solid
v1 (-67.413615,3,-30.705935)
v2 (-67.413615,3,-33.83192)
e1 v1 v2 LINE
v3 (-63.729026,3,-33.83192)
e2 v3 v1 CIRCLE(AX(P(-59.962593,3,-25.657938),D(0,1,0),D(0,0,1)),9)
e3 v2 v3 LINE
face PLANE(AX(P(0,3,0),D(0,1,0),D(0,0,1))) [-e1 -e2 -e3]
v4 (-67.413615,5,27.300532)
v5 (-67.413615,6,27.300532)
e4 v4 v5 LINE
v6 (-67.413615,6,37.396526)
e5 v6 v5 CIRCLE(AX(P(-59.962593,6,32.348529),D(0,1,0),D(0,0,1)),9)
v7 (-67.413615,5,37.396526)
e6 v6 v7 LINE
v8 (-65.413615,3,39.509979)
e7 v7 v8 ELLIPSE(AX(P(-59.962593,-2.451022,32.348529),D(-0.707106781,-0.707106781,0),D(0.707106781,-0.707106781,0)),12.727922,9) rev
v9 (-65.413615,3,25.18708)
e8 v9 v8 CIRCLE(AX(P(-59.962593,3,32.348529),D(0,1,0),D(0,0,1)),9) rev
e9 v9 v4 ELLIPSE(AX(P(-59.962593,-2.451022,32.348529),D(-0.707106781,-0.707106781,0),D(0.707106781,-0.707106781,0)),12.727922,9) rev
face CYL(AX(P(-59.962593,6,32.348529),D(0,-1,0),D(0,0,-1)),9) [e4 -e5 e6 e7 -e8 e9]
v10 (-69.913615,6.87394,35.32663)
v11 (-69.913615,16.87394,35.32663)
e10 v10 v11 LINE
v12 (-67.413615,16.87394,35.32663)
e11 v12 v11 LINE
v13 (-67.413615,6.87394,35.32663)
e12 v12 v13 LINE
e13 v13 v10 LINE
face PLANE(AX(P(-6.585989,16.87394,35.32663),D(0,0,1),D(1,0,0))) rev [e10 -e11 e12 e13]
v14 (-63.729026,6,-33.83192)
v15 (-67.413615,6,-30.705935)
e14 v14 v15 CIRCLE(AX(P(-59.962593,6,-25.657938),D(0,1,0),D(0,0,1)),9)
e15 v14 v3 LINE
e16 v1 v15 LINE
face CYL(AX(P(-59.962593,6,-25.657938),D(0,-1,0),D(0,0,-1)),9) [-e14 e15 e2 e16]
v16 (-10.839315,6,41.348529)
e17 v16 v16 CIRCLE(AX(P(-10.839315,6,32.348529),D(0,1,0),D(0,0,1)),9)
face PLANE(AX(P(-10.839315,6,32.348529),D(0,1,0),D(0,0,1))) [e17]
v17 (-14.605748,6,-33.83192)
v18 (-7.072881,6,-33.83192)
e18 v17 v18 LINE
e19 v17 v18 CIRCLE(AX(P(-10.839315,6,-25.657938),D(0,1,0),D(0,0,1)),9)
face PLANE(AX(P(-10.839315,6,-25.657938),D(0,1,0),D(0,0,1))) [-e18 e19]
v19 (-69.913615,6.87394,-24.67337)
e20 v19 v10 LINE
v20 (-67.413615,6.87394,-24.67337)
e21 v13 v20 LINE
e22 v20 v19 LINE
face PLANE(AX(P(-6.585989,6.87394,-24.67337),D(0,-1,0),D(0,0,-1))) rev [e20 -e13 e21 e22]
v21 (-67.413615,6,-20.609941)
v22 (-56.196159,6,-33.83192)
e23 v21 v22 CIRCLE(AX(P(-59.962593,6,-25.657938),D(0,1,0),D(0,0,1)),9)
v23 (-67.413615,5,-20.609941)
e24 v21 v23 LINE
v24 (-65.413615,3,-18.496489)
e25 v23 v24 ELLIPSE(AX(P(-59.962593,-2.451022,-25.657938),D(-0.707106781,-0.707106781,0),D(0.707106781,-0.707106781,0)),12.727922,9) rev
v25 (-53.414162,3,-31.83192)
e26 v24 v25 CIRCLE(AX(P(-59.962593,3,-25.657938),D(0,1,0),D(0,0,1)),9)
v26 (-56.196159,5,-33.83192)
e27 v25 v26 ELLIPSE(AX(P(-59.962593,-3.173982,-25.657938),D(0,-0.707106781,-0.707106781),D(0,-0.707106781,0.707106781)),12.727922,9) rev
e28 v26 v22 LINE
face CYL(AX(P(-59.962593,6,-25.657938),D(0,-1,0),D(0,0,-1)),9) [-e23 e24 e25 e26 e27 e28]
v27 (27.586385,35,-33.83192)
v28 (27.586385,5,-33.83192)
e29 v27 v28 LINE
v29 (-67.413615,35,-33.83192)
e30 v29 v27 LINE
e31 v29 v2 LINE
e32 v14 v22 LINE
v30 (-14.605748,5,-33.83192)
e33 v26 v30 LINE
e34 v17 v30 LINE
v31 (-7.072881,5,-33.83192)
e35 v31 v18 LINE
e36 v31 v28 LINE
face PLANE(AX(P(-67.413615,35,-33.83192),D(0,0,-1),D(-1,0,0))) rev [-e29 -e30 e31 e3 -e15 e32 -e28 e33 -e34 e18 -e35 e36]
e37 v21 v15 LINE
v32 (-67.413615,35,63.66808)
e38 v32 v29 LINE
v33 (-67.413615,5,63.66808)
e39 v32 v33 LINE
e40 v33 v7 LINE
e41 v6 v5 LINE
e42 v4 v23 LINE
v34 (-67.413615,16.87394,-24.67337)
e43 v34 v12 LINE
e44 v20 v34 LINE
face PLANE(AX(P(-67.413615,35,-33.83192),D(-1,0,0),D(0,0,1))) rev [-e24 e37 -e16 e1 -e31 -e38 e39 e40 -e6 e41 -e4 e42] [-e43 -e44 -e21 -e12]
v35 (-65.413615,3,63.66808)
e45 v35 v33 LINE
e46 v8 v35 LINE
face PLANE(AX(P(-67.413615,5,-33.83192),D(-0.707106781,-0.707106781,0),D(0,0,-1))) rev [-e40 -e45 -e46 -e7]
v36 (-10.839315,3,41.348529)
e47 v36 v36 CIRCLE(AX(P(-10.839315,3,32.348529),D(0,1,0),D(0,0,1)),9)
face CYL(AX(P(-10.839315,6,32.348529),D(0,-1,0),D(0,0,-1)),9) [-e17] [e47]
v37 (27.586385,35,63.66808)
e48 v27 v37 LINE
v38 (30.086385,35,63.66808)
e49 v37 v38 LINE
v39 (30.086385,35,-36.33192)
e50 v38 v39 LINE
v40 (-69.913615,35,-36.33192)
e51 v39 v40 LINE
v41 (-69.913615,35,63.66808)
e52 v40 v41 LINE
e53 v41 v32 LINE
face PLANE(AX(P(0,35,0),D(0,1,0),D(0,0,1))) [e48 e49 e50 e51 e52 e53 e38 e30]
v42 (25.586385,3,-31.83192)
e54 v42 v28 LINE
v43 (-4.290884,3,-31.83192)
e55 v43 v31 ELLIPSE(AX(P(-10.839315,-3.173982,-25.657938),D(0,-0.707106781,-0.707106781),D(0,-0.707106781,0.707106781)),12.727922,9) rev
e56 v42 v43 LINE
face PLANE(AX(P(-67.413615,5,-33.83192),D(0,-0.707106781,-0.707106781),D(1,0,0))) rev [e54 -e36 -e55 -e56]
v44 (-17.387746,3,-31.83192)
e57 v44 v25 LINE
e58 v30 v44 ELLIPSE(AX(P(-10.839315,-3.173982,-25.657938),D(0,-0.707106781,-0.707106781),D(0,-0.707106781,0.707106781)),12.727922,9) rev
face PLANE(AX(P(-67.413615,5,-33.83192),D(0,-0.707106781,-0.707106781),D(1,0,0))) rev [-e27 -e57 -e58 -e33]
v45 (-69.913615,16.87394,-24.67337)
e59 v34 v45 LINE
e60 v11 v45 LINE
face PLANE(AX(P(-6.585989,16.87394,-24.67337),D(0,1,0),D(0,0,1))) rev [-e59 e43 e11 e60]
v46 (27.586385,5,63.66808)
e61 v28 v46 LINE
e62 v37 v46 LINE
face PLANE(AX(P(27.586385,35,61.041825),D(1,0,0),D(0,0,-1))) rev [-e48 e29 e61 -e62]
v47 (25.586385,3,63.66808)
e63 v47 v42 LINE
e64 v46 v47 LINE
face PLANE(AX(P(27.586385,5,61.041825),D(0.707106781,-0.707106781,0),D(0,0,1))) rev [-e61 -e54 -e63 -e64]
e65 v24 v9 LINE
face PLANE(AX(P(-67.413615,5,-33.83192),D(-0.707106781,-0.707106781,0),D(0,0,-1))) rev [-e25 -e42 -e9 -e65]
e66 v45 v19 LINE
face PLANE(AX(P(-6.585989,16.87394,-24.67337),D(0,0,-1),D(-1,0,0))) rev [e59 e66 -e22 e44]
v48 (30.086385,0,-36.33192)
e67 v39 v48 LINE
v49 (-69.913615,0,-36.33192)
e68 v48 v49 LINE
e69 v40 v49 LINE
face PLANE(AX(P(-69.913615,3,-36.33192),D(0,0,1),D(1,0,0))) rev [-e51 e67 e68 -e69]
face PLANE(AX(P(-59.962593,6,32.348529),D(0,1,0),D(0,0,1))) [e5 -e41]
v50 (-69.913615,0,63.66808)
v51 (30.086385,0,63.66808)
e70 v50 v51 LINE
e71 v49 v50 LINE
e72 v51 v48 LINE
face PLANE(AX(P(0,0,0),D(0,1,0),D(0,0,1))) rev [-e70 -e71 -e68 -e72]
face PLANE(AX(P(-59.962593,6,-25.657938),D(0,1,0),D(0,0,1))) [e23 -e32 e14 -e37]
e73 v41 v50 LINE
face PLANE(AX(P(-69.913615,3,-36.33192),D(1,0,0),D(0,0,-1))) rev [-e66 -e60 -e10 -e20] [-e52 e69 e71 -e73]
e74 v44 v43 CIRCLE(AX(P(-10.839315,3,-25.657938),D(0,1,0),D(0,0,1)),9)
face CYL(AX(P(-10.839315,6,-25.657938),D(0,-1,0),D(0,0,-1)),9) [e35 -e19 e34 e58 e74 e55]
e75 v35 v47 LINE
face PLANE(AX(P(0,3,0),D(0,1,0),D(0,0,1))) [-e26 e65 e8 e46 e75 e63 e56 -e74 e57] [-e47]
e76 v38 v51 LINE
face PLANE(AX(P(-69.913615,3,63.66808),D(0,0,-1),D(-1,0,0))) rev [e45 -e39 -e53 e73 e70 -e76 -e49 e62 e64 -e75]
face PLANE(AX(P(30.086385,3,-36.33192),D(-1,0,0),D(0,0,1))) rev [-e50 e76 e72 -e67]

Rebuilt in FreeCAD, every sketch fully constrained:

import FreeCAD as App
import Part
import Sketcher
Q = App.Units.Quantity


def edges_at(feature, points):
    """Names of the edges that pass closest to the given points."""
    edges = feature.Shape.Edges
    near = lambda p: min(range(len(edges)), key=lambda i: edges[i].distToShape(Part.Vertex(*p))[0])
    return sorted({f"Edge{near(p) + 1}" for p in points})


def add_polygon(sketch, points):
    """Adds a closed chain of lines whose ends are joined by coincident constraints."""
    first, n = sketch.GeometryCount, len(points)
    for a, b in zip(points, points[1:] + points[:1]):
        sketch.addGeometry(Part.LineSegment(App.Vector(*a, 0), App.Vector(*b, 0)), False)
    for i in range(n):
        sketch.addConstraint(Sketcher.Constraint("Coincident", first + i, 2, first + (i + 1) % n, 1))

doc = App.newDocument("Part")
body = doc.addObject("PartDesign::Body", "Body")

# Sketch on XZ plane
sketch1 = doc.addObject("Sketcher::SketchObject", "Sketch")
body.addObject(sketch1)
sketch1.AttachmentSupport = (doc.XZ_Plane, [""])
sketch1.MapMode = "FlatFace"
add_polygon(sketch1, [(-70, -36), (-70, 64), (30, 64), (30, -36)])  # lines 0-3
sketch1.addConstraint([
    Sketcher.Constraint("Vertical", 0),
    Sketcher.Constraint("Horizontal", 1),
    Sketcher.Constraint("Vertical", 2),
    Sketcher.Constraint("Horizontal", 3),
    Sketcher.Constraint("Equal", 3, 0),
    Sketcher.Constraint("DistanceX", 1, 1, 1, 2, Q("100 mm")),
    Sketcher.Constraint("DistanceY", -1, 1, 0, 2, Q("63.66808 mm")),
    Sketcher.Constraint("DistanceX", 0, 2, -1, 1, Q("69.913615 mm")),
])
pad1 = doc.addObject("PartDesign::Pad", "Pad")
body.addObject(pad1)
pad1.Profile = sketch1
pad1.Length = 3
pad1.Reversed = True

# Sketch on XZ plane
sketch2 = doc.addObject("Sketcher::SketchObject", "Sketch001")
body.addObject(sketch2)
sketch2.AttachmentSupport = (doc.XZ_Plane, [""])
sketch2.MapMode = "FlatFace"
sketch2.AttachmentOffset = App.Placement(App.Vector(0, 0, -3), App.Rotation())
add_polygon(sketch2, [(27.6, 63.7), (30.1, 63.7), (30.1, -36.3), (-69.9, -36.3), (-69.9, 63.7), (-67.4, 63.7), (-67.4, -33.8), (27.6, -33.8)])  # lines 0-7
sketch2.addConstraint([
    Sketcher.Constraint("Horizontal", 0),
    Sketcher.Constraint("Vertical", 1),
    Sketcher.Constraint("Horizontal", 2),
    Sketcher.Constraint("Vertical", 3),
    Sketcher.Constraint("Horizontal", 4),
    Sketcher.Constraint("Vertical", 5),
    Sketcher.Constraint("Horizontal", 6),
    Sketcher.Constraint("Vertical", 7),
    Sketcher.Constraint("Horizontal", 0, 2, 3, 2),
    Sketcher.Constraint("Equal", 0, 4),
    Sketcher.Constraint("Equal", 2, 1),
    Sketcher.Constraint("DistanceX", 2, 2, 2, 1, Q("100 mm")),
    Sketcher.Constraint("DistanceX", 6, 1, 6, 2, Q("95 mm")),
    Sketcher.Constraint("DistanceY", 5, 2, 5, 1, Q("97.5 mm")),
    Sketcher.Constraint("DistanceY", -1, 1, 0, 2, Q("63.66808 mm")),
    Sketcher.Constraint("DistanceX", -1, 1, 0, 2, Q("30.086385 mm")),
])
pad2 = doc.addObject("PartDesign::Pad", "Pad001")
body.addObject(pad2)
pad2.Profile = sketch2
pad2.Length = 32
pad2.Reversed = True

# Sketch on XZ plane
sketch3 = doc.addObject("Sketcher::SketchObject", "Sketch002")
body.addObject(sketch3)
sketch3.AttachmentSupport = (doc.XZ_Plane, [""])
sketch3.MapMode = "FlatFace"
sketch3.AttachmentOffset = App.Placement(App.Vector(0, 0, -3), App.Rotation())
sketch3.addGeometry([
    Part.Circle(App.Vector(-11, -26, 0), App.Vector(0, 0, 1), 9),
    Part.Circle(App.Vector(-60, -26, 0), App.Vector(0, 0, 1), 9),
    Part.Circle(App.Vector(-60, 32, 0), App.Vector(0, 0, 1), 9),
    Part.Circle(App.Vector(-11, 32, 0), App.Vector(0, 0, 1), 9),
], False)
sketch3.addConstraint([
    Sketcher.Constraint("Equal", 0, 1),
    Sketcher.Constraint("Equal", 1, 2),
    Sketcher.Constraint("Equal", 2, 3),
    Sketcher.Constraint("Horizontal", 0, 3, 1, 3),
    Sketcher.Constraint("Horizontal", 2, 3, 3, 3),
    Sketcher.Constraint("Vertical", 1, 3, 2, 3),
    Sketcher.Constraint("Vertical", 0, 3, 3, 3),
    Sketcher.Constraint("Diameter", 0, Q("18 mm")),
    Sketcher.Constraint("DistanceY", 0, 3, -1, 1, Q("25.657938 mm")),
    Sketcher.Constraint("DistanceY", -1, 1, 2, 3, Q("32.348529 mm")),
    Sketcher.Constraint("DistanceX", 0, 3, -1, 1, Q("10.839315 mm")),
    Sketcher.Constraint("DistanceX", 1, 3, -1, 1, Q("59.962593 mm")),
])
pad3 = doc.addObject("PartDesign::Pad", "Pad002")
body.addObject(pad3)
pad3.Profile = sketch3
pad3.Length = 3
pad3.Reversed = True

# Sketch on YZ plane
sketch4 = doc.addObject("Sketcher::SketchObject", "Sketch003")
body.addObject(sketch4)
sketch4.AttachmentSupport = (doc.YZ_Plane, [""])
sketch4.MapMode = "FlatFace"
sketch4.AttachmentOffset = App.Placement(App.Vector(0, 0, -69.913615), App.Rotation())
add_polygon(sketch4, [(17, -25), (7, -25), (7, 35), (17, 35)])  # lines 0-3
sketch4.addConstraint([
    Sketcher.Constraint("Horizontal", 0),
    Sketcher.Constraint("Vertical", 1),
    Sketcher.Constraint("Horizontal", 2),
    Sketcher.Constraint("Vertical", 3),
    Sketcher.Constraint("DistanceX", 0, 2, 0, 1, Q("10 mm")),
    Sketcher.Constraint("DistanceY", 1, 1, 1, 2, Q("60 mm")),
    Sketcher.Constraint("DistanceX", -1, 1, 0, 2, Q("6.87394 mm")),
    Sketcher.Constraint("DistanceY", 0, 2, -1, 1, Q("24.67337 mm")),
])
pocket1 = doc.addObject("PartDesign::Pocket", "Pocket")
body.addObject(pocket1)
pocket1.Profile = sketch4
pocket1.Length = 2.5
pocket1.Reversed = True
doc.recompute()

chamfer = doc.addObject("PartDesign::Chamfer", "Chamfer")
body.addObject(chamfer)
chamfer.Base = (pocket1, edges_at(pocket1, [
    (-67.414, 3, 50.532),
    (27.586, 3, 14.918),
    (10.257, 3, -33.832),
    (-35.401, 3, -33.832),
    (-67.414, 3, 3.345),
]))
chamfer.Size = 2

doc.recompute()
